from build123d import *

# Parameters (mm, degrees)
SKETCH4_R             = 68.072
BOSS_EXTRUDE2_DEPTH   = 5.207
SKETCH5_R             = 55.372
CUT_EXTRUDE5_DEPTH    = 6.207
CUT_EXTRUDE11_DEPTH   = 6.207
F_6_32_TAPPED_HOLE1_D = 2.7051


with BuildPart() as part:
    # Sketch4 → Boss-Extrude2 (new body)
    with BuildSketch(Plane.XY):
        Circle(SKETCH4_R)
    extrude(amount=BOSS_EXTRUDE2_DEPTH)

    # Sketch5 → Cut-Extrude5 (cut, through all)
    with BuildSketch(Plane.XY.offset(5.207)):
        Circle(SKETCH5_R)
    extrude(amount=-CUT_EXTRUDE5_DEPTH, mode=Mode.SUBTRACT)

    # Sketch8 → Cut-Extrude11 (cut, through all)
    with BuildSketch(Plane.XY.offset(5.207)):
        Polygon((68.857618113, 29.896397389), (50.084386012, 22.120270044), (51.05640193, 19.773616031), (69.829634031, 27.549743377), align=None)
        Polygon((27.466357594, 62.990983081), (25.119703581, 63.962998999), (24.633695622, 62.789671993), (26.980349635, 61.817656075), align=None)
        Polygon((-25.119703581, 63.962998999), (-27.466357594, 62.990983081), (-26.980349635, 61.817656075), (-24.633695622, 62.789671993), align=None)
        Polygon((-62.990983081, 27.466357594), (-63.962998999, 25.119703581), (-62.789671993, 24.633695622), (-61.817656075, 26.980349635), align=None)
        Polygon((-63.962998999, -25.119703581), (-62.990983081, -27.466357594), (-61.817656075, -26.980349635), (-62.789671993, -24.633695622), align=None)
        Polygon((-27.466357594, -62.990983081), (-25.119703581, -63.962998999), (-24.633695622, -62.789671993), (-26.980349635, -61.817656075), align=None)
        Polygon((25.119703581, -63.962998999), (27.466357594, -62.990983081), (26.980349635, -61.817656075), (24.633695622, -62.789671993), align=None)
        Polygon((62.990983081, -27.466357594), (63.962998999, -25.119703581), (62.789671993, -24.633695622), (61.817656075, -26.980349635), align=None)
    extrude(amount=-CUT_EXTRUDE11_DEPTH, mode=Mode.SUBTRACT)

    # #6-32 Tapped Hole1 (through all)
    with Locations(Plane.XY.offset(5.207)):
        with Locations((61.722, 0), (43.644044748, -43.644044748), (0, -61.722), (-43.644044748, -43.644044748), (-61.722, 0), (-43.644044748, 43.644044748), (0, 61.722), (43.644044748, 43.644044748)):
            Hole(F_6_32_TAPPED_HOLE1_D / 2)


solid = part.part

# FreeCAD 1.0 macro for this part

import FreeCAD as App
import Part
import Sketcher
Q = App.Units.Quantity


def add_polygon(sketch, points):
    """Adds a closed chain of lines whose ends are joined by coincident constraints."""
    first, n = sketch.GeometryCount, len(points)
    for a, b in zip(points, points[1:] + points[:1]):
        sketch.addGeometry(Part.LineSegment(App.Vector(*a, 0), App.Vector(*b, 0)), False)
    for i in range(n):
        sketch.addConstraint(Sketcher.Constraint("Coincident", first + i, 2, first + (i + 1) % n, 1))

doc = App.newDocument("Part")
params = doc.addObject("Spreadsheet::Sheet", "Params")
for row, (alias, value) in enumerate([
    ("sketch1_diameter", "5.36 in"),
    ("pad1_length", "0.205 in"),
    ("sketch2_diameter", "4.36 in"),
    ("sketch3_length", "0.8 in"),
    ("sketch3_length2", "0.1 in"),
    ("sketch3_length3", "0.05 in"),
    ("hole_diameter", "0.1065 in"),
], start=1):
    params.set(f"A{row}", alias)
    params.set(f"B{row}", "=" + value)
    params.setAlias(f"B{row}", alias)

body = doc.addObject("PartDesign::Body", "Body")

sketch1 = doc.addObject("Sketcher::SketchObject", "Sketch")
body.addObject(sketch1)
sketch1.AttachmentSupport = (doc.XY_Plane, [""])
sketch1.MapMode = "FlatFace"
sketch1.addGeometry(Part.Circle(App.Vector(0, 0, 0), App.Vector(0, 0, 1), 68), False)
sketch1.addConstraint([
    Sketcher.Constraint("Coincident", 0, 3, -1, 1),
    Sketcher.Constraint("Diameter", 0, Q("5.36 in")),
])
sketch1.setExpression("Constraints[1]", "Params.sketch1_diameter")
pad1 = doc.addObject("PartDesign::Pad", "Pad")
body.addObject(pad1)
pad1.Profile = sketch1
pad1.setExpression("Length", "Params.pad1_length")

sketch2 = doc.addObject("Sketcher::SketchObject", "Sketch001")
body.addObject(sketch2)
sketch2.AttachmentSupport = (doc.XY_Plane, [""])
sketch2.MapMode = "FlatFace"
sketch2.AttachmentOffset = App.Placement(App.Vector(0, 0, 0.205 * 25.4), App.Rotation())
sketch2.addGeometry(Part.Circle(App.Vector(0, 0, 0), App.Vector(0, 0, 1), 55), False)
sketch2.addConstraint([
    Sketcher.Constraint("Coincident", 0, 3, -1, 1),
    Sketcher.Constraint("Diameter", 0, Q("4.36 in")),
])
sketch2.setExpression("Constraints[1]", "Params.sketch2_diameter")
pocket1 = doc.addObject("PartDesign::Pocket", "Pocket")
body.addObject(pocket1)
pocket1.Profile = sketch2
pocket1.Type = "ThroughAll"

sketch3 = doc.addObject("Sketcher::SketchObject", "Sketch002")
body.addObject(sketch3)
sketch3.AttachmentSupport = (doc.XY_Plane, [""])
sketch3.MapMode = "FlatFace"
sketch3.AttachmentOffset = App.Placement(App.Vector(0, 0, 0.205 * 25.4), App.Rotation())
add_polygon(sketch3, [(68.9, 29.9), (50.1, 22.1), (51.1, 19.8), (69.8, 27.5)])
add_polygon(sketch3, [(27.5, 63), (25.1, 64), (24.6, 62.8), (27, 61.8)])
add_polygon(sketch3, [(-25.1, 64), (-27.5, 63), (-27, 61.8), (-24.6, 62.8)])
add_polygon(sketch3, [(-63, 27.5), (-64, 25.1), (-62.8, 24.6), (-61.8, 27)])
add_polygon(sketch3, [(-64, -25.1), (-63, -27.5), (-61.8, -27), (-62.8, -24.6)])
add_polygon(sketch3, [(-27.5, -63), (-25.1, -64), (-24.6, -62.8), (-27, -61.8)])
add_polygon(sketch3, [(25.1, -64), (27.5, -63), (27, -61.8), (24.6, -62.8)])
add_polygon(sketch3, [(63, -27.5), (64, -25.1), (62.8, -24.6), (61.8, -27)])
sketch3.addConstraint([
    Sketcher.Constraint("Symmetric", 4, 2, 20, 2, -1, 1),
    Sketcher.Constraint("Symmetric", 5, 2, 21, 2, -1, 1),
    Sketcher.Constraint("Symmetric", 6, 2, 22, 2, -1, 1),
    Sketcher.Constraint("Symmetric", 7, 2, 23, 2, -1, 1),
    Sketcher.Constraint("Symmetric", 8, 2, 24, 2, -1, 1),
    Sketcher.Constraint("Symmetric", 9, 2, 25, 2, -1, 1),
    Sketcher.Constraint("Symmetric", 10, 2, 26, 2, -1, 1),
    Sketcher.Constraint("Symmetric", 11, 2, 27, 2, -1, 1),
    Sketcher.Constraint("Symmetric", 12, 2, 28, 2, -1, 1),
    Sketcher.Constraint("Symmetric", 13, 2, 29, 2, -1, 1),
    Sketcher.Constraint("Symmetric", 14, 2, 30, 2, -1, 1),
    Sketcher.Constraint("Symmetric", 15, 2, 31, 2, -1, 1),
    Sketcher.Constraint("Symmetric", 7, 2, 8, 2, -2),
    Sketcher.Constraint("Symmetric", 6, 2, 9, 2, -2),
    Sketcher.Constraint("Symmetric", 5, 2, 10, 2, -2),
    Sketcher.Constraint("Symmetric", 4, 2, 11, 2, -2),
    Sketcher.Constraint("Symmetric", 19, 2, 28, 2, -2),
    Sketcher.Constraint("Symmetric", 18, 2, 29, 2, -2),
    Sketcher.Constraint("Symmetric", 17, 2, 30, 2, -2),
    Sketcher.Constraint("Symmetric", 16, 2, 31, 2, -2),
    Sketcher.Constraint("Perpendicular", 0, 1),
    Sketcher.Constraint("Perpendicular", 1, 2),
    Sketcher.Constraint("Perpendicular", 2, 3),
    Sketcher.Constraint("Perpendicular", 4, 5),
    Sketcher.Constraint("Perpendicular", 5, 6),
    Sketcher.Constraint("Perpendicular", 6, 7),
    Sketcher.Constraint("Perpendicular", 3, 8),
    Sketcher.Constraint("Parallel", 7, 12),
    Sketcher.Constraint("Perpendicular", 12, 13),
    Sketcher.Constraint("Perpendicular", 13, 14),
    Sketcher.Constraint("Perpendicular", 14, 15),
    Sketcher.Constraint("Equal", 3, 4),
    Sketcher.Constraint("Equal", 10, 12),
    Sketcher.Constraint("Equal", 11, 13),
    Sketcher.Constraint("Distance", 0, Q("0.8 in")),
    Sketcher.Constraint("Distance", 1, Q("0.1 in")),
    Sketcher.Constraint("Angle", 0, Q("-157.5 deg")),
    Sketcher.Constraint("Distance", 5, Q("0.05 in")),
    Sketcher.Constraint("DistanceX", -1, 1, 1, 2, 51.056402),
    Sketcher.Constraint("DistanceY", -1, 1, 4, 2, 63.962999),
    Sketcher.Constraint("DistanceX", 12, 2, -1, 1, 63.962999),
    Sketcher.Constraint("DistanceX", 4, 2, 1, 2, 25.936698),
    Sketcher.Constraint("DistanceY", 3, 2, 4, 2, 34.066602),
    Sketcher.Constraint("DistanceY", 15, 2, 9, 2, 34.351298),
])
sketch3.setExpression("Constraints[66]", "Params.sketch3_length")
sketch3.setExpression("Constraints[67]", "Params.sketch3_length2")
sketch3.setExpression("Constraints[69]", "Params.sketch3_length3")
pocket2 = doc.addObject("PartDesign::Pocket", "Pocket001")
body.addObject(pocket2)
pocket2.Profile = sketch3
pocket2.Type = "ThroughAll"

sketch4 = doc.addObject("Sketcher::SketchObject", "Sketch003")
body.addObject(sketch4)
sketch4.AttachmentSupport = (doc.XY_Plane, [""])
sketch4.MapMode = "FlatFace"
sketch4.AttachmentOffset = App.Placement(App.Vector(0, 0, 0.205 * 25.4), App.Rotation())
sketch4.addGeometry([
    Part.Circle(App.Vector(61.7, 0, 0), App.Vector(0, 0, 1), 1.4),
    Part.Circle(App.Vector(43.6, -43.6, 0), App.Vector(0, 0, 1), 1.4),
    Part.Circle(App.Vector(0, -61.7, 0), App.Vector(0, 0, 1), 1.4),
    Part.Circle(App.Vector(-43.6, -43.6, 0), App.Vector(0, 0, 1), 1.4),
    Part.Circle(App.Vector(-61.7, 0, 0), App.Vector(0, 0, 1), 1.4),
    Part.Circle(App.Vector(-43.6, 43.6, 0), App.Vector(0, 0, 1), 1.4),
    Part.Circle(App.Vector(0, 61.7, 0), App.Vector(0, 0, 1), 1.4),
    Part.Circle(App.Vector(43.6, 43.6, 0), App.Vector(0, 0, 1), 1.4),
], False)
sketch4.addConstraint([
    Sketcher.Constraint("Equal", 0, 1),
    Sketcher.Constraint("Equal", 1, 2),
    Sketcher.Constraint("Equal", 2, 3),
    Sketcher.Constraint("Equal", 3, 4),
    Sketcher.Constraint("Equal", 4, 5),
    Sketcher.Constraint("Equal", 5, 6),
    Sketcher.Constraint("Equal", 6, 7),
    Sketcher.Constraint("Symmetric", 0, 3, 4, 3, -1, 1),
    Sketcher.Constraint("Symmetric", 1, 3, 5, 3, -1, 1),
    Sketcher.Constraint("Symmetric", 2, 3, 6, 3, -1, 1),
    Sketcher.Constraint("Symmetric", 3, 3, 7, 3, -1, 1),
    Sketcher.Constraint("Symmetric", 1, 3, 3, 3, -2),
    Sketcher.Constraint("PointOnObject", 0, 3, -1),
    Sketcher.Constraint("PointOnObject", 2, 3, -2),
    Sketcher.Constraint("Diameter", 0, Q("0.1065 in")),
    Sketcher.Constraint("DistanceX", -1, 1, 0, 3, Q("2.43 in")),
    Sketcher.Constraint("DistanceY", 2, 3, -1, 1, Q("2.43 in")),
    Sketcher.Constraint("DistanceX", 3, 3, 1, 3, 87.288089),
    Sketcher.Constraint("DistanceY", 3, 3, 5, 3, 87.288089),
])
doc.recompute()
hole = doc.addObject("PartDesign::Hole", "Hole")
body.addObject(hole)
hole.Profile = sketch4
hole.ThreadType = "None"
hole.setExpression("Diameter", "Params.hole_diameter")
hole.DepthType = "ThroughAll"

doc.recompute()
